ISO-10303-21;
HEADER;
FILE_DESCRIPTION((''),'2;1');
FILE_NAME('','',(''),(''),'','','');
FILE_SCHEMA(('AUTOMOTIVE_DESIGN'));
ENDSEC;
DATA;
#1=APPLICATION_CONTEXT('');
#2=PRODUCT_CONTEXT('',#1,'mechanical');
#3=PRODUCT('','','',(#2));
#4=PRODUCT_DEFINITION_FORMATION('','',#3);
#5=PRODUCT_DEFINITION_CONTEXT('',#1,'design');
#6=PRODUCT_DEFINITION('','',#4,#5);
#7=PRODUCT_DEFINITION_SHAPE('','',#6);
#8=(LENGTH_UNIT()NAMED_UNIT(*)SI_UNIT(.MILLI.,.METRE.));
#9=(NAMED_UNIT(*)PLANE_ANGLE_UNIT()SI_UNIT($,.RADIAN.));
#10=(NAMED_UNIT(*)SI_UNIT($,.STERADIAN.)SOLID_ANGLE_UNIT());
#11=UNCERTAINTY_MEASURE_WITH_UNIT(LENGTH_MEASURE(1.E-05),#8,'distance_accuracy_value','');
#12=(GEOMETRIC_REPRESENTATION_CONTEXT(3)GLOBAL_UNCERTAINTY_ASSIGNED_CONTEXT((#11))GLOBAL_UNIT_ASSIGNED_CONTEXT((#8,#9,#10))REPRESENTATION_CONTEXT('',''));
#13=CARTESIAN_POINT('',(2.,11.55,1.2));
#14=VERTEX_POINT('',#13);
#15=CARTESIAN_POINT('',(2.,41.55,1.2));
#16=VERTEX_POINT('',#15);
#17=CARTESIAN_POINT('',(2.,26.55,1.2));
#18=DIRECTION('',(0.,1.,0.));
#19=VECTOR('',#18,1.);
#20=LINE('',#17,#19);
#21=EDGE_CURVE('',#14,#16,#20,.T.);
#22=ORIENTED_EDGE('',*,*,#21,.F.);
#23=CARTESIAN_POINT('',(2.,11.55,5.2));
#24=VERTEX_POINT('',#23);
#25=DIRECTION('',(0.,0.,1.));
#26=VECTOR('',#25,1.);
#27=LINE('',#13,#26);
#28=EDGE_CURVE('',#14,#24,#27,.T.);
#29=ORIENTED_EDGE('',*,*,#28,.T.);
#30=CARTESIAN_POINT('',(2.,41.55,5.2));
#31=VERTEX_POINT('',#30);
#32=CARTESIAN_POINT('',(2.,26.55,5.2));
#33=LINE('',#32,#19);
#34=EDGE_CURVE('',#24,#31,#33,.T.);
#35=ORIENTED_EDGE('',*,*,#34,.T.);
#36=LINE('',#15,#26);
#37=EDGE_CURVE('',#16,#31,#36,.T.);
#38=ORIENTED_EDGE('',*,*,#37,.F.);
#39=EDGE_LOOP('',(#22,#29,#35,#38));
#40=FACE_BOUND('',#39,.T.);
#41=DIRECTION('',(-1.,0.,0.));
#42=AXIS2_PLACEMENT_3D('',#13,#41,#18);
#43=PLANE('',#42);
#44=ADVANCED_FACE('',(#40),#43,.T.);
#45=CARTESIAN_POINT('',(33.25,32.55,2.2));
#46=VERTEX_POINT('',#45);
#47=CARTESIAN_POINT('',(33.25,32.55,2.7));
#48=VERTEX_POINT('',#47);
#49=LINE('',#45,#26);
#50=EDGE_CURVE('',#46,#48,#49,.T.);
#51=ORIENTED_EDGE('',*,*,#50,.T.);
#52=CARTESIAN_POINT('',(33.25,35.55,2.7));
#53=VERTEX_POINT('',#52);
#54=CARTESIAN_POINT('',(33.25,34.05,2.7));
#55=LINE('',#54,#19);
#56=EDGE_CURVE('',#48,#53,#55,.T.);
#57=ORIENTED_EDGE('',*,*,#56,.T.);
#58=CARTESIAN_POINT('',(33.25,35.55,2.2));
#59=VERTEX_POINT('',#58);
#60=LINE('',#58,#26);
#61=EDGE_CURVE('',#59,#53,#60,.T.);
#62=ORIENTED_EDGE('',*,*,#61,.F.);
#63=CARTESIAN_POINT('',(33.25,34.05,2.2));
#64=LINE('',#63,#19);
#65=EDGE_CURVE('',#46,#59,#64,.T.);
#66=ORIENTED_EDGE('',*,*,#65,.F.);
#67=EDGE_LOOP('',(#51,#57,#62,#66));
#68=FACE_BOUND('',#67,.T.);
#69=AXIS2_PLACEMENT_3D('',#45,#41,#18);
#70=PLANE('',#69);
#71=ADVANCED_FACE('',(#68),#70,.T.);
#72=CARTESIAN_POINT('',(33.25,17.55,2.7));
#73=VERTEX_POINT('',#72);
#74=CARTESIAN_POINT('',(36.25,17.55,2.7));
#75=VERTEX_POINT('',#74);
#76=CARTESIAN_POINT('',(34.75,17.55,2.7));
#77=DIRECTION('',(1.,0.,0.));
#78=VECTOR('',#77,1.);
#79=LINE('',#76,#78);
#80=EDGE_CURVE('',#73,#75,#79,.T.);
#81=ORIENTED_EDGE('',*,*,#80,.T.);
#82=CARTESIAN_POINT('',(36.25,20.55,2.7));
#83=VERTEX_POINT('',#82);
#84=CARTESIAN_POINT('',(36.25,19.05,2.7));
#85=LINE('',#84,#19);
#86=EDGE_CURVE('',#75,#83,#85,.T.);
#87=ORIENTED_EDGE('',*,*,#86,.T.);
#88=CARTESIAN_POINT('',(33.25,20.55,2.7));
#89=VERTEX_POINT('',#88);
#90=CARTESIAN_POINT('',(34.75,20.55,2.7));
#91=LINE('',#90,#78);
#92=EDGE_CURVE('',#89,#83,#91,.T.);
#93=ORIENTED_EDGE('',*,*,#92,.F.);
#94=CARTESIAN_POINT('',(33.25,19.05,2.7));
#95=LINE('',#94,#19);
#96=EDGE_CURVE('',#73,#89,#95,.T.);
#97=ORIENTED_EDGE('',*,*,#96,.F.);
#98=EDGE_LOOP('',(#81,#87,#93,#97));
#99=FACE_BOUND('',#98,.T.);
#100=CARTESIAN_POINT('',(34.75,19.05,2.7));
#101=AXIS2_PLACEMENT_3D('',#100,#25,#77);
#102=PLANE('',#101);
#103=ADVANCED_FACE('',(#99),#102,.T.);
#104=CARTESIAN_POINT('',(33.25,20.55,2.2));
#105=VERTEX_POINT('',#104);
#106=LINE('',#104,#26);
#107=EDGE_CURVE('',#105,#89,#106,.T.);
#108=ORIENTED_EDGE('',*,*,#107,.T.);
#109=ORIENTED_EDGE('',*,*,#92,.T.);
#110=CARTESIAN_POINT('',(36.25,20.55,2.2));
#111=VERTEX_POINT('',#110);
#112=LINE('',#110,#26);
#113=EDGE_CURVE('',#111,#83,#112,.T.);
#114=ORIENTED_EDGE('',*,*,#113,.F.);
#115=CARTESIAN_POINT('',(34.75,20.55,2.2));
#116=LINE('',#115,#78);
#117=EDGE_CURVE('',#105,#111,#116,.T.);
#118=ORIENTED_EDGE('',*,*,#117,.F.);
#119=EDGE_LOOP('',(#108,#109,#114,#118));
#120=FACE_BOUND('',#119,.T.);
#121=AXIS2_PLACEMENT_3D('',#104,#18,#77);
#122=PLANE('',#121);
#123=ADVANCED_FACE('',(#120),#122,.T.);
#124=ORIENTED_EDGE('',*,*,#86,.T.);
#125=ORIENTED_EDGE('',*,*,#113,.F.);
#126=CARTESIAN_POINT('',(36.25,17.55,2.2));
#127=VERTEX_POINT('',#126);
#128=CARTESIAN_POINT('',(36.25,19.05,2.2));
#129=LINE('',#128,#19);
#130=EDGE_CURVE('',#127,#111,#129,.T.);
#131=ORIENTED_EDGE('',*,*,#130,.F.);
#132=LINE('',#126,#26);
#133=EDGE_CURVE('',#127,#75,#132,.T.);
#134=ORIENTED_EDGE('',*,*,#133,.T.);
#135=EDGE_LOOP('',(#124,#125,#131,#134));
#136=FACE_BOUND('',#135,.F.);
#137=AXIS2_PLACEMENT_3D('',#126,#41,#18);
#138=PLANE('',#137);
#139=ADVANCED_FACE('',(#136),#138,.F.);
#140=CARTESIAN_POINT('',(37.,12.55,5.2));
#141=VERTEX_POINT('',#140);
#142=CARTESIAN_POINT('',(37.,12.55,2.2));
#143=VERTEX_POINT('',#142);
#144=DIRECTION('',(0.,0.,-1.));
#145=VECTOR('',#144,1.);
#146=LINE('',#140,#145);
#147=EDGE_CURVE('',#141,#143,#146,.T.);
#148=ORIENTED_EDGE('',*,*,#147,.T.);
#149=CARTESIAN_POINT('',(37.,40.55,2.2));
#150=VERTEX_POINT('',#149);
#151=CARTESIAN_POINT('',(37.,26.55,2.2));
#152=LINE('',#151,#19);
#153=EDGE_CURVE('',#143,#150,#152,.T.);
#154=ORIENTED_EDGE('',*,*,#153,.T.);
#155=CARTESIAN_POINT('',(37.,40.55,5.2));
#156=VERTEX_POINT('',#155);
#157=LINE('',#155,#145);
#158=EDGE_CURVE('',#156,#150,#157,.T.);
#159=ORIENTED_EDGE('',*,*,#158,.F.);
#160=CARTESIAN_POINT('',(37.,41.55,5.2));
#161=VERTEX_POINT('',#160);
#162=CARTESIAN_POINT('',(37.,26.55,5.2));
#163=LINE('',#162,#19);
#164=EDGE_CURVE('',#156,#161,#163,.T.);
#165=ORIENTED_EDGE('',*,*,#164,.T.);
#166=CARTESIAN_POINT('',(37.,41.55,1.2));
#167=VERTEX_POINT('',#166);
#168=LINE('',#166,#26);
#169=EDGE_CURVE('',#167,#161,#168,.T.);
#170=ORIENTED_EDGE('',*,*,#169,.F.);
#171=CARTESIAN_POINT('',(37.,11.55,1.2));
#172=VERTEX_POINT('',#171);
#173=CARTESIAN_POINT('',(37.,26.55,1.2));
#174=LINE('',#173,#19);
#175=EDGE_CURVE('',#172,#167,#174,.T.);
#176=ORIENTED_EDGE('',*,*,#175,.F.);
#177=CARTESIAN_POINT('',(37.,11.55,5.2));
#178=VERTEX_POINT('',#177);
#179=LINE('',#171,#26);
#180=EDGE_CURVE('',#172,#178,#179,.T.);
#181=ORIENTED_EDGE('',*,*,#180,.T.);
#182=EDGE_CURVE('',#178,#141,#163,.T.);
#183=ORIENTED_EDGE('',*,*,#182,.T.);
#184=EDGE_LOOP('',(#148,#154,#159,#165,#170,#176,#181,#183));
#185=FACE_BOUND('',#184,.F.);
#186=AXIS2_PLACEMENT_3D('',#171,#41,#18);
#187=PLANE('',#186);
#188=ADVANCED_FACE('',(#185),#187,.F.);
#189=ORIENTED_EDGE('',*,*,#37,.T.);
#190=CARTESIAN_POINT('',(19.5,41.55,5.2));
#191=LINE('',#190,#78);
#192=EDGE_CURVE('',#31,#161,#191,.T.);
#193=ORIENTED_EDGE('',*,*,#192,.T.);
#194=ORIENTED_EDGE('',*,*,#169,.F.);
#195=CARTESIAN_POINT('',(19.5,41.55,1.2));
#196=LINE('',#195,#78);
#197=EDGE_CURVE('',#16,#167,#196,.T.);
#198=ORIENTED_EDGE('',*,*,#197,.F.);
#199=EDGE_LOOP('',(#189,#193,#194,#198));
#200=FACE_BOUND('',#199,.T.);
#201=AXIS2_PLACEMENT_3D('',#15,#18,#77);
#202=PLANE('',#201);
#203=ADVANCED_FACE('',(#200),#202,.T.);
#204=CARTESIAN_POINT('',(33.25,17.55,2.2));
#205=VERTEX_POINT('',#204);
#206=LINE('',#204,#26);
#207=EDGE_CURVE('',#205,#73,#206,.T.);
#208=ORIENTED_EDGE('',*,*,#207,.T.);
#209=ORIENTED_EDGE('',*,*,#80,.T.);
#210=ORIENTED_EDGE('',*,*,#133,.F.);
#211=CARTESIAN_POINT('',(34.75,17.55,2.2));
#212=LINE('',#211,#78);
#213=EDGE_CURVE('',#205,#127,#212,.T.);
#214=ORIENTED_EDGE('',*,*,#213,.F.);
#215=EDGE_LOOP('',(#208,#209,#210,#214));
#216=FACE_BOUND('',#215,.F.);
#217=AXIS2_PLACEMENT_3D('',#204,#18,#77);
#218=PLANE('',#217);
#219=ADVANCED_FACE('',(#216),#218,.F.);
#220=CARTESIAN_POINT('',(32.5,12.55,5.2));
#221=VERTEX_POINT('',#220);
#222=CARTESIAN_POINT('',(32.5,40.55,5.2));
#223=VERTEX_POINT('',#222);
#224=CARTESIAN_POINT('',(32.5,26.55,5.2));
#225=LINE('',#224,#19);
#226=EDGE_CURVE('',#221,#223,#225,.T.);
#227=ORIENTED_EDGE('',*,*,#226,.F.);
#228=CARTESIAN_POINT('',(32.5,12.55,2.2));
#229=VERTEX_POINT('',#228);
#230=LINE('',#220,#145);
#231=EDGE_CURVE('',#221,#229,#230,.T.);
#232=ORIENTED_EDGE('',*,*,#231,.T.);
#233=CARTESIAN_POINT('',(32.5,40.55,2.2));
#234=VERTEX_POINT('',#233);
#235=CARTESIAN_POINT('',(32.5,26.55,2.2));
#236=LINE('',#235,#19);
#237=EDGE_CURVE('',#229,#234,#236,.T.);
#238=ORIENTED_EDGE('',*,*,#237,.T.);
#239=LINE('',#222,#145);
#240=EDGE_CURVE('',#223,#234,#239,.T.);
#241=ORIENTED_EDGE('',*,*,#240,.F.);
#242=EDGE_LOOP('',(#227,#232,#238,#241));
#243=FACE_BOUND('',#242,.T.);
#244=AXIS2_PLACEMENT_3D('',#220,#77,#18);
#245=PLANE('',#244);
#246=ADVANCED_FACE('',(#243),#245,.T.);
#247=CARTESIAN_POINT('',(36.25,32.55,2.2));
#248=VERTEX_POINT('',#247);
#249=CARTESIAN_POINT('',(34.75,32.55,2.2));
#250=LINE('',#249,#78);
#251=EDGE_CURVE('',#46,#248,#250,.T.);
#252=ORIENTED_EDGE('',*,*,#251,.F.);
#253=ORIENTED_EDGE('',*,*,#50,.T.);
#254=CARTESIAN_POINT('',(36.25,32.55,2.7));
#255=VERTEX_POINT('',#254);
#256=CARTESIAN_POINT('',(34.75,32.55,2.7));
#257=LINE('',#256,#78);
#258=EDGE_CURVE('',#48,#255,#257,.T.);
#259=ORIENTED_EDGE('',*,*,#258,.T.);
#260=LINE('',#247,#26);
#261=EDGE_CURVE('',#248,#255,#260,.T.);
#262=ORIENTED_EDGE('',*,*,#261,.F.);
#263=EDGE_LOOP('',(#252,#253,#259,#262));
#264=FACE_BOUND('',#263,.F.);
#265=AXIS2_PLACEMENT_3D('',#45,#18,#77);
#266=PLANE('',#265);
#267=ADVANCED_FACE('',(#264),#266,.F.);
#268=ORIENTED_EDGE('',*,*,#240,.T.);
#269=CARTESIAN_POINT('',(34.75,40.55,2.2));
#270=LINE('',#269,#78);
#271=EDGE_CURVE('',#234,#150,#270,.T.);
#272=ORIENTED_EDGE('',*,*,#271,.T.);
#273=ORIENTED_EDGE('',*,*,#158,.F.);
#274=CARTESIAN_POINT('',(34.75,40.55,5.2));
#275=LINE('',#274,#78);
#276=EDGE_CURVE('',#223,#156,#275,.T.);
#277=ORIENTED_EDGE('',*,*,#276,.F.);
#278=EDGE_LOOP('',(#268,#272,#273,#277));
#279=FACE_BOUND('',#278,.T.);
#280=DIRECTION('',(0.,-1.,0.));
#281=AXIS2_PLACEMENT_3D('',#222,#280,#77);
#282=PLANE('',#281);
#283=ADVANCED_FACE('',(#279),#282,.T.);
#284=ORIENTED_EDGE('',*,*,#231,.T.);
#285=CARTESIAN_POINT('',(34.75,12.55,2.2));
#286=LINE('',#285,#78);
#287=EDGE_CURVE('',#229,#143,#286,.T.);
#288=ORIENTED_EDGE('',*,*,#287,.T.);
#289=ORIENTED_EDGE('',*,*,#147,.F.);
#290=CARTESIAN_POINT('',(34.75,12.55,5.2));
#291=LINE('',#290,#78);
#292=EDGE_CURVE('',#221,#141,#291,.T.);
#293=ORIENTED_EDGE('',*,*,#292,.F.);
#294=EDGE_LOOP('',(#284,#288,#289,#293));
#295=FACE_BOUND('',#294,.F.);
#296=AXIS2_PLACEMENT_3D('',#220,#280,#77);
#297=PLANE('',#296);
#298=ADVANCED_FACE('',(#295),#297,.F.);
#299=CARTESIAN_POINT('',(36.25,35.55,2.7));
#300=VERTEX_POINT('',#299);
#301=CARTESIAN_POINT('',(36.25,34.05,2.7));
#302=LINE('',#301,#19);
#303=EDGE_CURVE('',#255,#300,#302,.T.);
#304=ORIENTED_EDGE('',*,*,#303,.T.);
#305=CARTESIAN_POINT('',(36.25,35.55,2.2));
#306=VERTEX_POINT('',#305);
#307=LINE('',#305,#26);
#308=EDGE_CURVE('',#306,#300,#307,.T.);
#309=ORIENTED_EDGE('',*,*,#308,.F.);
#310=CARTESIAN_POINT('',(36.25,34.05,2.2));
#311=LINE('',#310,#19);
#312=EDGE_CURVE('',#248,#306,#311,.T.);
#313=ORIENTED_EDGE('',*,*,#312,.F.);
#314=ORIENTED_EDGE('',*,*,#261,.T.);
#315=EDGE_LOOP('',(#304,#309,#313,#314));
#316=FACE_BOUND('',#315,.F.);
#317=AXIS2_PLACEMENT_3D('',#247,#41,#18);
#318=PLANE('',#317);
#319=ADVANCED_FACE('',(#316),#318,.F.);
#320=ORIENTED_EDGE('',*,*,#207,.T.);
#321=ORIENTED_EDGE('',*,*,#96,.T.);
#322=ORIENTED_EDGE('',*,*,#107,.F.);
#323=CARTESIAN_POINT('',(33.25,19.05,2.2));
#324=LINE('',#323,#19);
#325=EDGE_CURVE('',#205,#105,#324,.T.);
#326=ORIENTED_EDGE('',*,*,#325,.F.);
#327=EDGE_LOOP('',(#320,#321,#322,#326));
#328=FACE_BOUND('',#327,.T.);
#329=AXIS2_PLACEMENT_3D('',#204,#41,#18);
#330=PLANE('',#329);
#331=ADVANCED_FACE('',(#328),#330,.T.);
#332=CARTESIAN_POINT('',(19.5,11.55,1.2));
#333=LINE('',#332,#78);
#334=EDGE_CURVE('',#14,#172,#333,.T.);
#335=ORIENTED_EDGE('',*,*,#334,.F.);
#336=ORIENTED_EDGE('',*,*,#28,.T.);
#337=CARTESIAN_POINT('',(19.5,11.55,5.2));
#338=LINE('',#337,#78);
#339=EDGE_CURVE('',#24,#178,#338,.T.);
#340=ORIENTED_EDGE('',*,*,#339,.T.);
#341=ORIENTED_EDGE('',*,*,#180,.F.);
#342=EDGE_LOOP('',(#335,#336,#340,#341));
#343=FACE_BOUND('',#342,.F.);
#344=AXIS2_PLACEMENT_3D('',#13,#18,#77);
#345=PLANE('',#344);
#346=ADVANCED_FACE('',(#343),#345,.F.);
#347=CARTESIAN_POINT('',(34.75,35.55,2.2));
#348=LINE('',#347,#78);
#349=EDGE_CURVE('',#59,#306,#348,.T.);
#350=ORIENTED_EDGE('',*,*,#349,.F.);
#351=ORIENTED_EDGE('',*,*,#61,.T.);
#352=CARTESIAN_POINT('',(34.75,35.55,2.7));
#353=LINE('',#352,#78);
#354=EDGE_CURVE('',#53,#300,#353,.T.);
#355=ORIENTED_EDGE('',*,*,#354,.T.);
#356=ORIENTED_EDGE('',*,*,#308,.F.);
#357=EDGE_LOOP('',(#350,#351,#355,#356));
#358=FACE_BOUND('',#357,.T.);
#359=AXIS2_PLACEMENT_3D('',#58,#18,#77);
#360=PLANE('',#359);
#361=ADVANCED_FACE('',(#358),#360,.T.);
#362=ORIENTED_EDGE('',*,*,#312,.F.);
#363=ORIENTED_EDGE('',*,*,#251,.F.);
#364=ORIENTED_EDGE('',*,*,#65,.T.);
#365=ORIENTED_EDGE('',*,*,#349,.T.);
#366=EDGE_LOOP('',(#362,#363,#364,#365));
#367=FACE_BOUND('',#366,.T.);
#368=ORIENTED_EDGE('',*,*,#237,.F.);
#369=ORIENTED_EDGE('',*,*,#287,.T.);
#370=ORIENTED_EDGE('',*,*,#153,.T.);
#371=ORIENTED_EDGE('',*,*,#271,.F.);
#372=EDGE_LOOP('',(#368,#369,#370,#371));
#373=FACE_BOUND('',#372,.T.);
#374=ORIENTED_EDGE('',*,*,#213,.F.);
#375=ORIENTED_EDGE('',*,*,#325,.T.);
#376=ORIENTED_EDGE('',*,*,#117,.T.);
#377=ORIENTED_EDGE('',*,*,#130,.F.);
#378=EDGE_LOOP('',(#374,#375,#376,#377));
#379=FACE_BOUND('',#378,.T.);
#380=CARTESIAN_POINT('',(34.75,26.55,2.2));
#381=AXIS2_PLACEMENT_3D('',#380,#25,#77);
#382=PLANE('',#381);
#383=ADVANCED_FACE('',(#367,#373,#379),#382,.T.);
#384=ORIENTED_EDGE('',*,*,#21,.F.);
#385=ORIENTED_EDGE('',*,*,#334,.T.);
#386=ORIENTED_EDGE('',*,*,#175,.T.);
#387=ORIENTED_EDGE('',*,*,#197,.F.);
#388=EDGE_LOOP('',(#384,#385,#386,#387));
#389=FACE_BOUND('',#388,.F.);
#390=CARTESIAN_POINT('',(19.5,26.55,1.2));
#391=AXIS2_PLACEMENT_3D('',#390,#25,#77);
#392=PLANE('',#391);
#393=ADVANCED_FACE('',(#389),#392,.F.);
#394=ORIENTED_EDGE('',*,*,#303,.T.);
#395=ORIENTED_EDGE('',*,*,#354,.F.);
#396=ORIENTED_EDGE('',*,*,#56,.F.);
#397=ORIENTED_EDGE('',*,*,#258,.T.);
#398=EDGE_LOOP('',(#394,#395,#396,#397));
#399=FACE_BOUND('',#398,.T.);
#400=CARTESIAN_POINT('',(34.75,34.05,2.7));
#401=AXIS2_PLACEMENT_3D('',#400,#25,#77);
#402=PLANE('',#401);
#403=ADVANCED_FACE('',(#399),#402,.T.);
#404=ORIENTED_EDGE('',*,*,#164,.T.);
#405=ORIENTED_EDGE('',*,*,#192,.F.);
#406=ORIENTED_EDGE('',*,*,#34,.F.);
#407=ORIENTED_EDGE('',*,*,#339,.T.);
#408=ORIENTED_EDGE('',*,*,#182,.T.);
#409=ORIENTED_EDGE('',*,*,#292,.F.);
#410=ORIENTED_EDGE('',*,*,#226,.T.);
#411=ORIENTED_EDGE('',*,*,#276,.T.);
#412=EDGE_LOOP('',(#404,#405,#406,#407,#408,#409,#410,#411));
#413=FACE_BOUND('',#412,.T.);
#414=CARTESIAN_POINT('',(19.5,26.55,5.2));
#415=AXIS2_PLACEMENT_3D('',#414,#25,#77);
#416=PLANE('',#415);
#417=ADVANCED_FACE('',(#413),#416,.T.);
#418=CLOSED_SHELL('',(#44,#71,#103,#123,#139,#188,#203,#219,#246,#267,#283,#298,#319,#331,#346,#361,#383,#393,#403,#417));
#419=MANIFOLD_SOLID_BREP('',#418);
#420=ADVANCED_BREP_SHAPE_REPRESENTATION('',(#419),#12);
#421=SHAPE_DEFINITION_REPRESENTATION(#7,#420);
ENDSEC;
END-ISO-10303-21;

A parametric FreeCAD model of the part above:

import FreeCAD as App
import Part
import Sketcher

V = App.Vector


def add_polygon(sketch, points):
    """Adds a closed chain of lines whose ends are joined by coincident constraints."""
    first, n = sketch.GeometryCount, len(points)
    for a, b in zip(points, points[1:] + points[:1]):
        sketch.addGeometry(Part.LineSegment(App.Vector(*a, 0), App.Vector(*b, 0)), False)
    for i in range(n):
        sketch.addConstraint(Sketcher.Constraint("Coincident", first + i, 2, first + (i + 1) % n, 1))

doc = App.newDocument("Part")
body = doc.addObject("PartDesign::Body", "Body")

sketch1 = body.newObject("Sketcher::SketchObject", "Sketch")
sketch1.AttachmentSupport = (doc.getObject("XY_Plane"), [""])
sketch1.MapMode = "FlatFace"
sketch1.AttachmentOffset = App.Placement(V(0, 0, 1.2), App.Rotation())
add_polygon(sketch1, [(2, 42), (2, 12), (37, 12), (37, 42)])
sketch1.addConstraint([
    Sketcher.Constraint("Vertical", 0),
    Sketcher.Constraint("Horizontal", 1),
    Sketcher.Constraint("Vertical", 2),
    Sketcher.Constraint("Horizontal", 3),
    Sketcher.Constraint("DistanceX", 1, 1, 1, 2, 35.0),
    Sketcher.Constraint("DistanceY", 0, 2, 0, 1, 30.0),
    Sketcher.Constraint("DistanceX", -1, 1, 0, 2, 2.0),
    Sketcher.Constraint("DistanceY", -1, 1, 0, 2, 11.55),
])
pad1 = body.newObject("PartDesign::Pad", "Pad")
pad1.Profile = sketch1
pad1.Length = 4

sketch2 = body.newObject("Sketcher::SketchObject", "Sketch001")
sketch2.AttachmentSupport = (doc.getObject("XY_Plane"), [""])
sketch2.MapMode = "FlatFace"
sketch2.AttachmentOffset = App.Placement(V(0, 0, 5.2), App.Rotation())
add_polygon(sketch2, [(32.5, 40.5), (32.5, 12.6), (37, 12.6), (37, 40.5)])
sketch2.addConstraint([
    Sketcher.Constraint("Vertical", 0),
    Sketcher.Constraint("Horizontal", 1),
    Sketcher.Constraint("Vertical", 2),
    Sketcher.Constraint("Horizontal", 3),
    Sketcher.Constraint("DistanceY", 0, 2, 0, 1, 28.0),
    Sketcher.Constraint("DistanceX", 1, 1, 1, 2, 4.5),
    Sketcher.Constraint("DistanceX", -1, 1, 1, 2, 37.0),
    Sketcher.Constraint("DistanceY", -1, 1, 0, 2, 12.55),
])
pocket1 = body.newObject("PartDesign::Pocket", "Pocket")
pocket1.Profile = sketch2
pocket1.Length = 3

sketch3 = body.newObject("Sketcher::SketchObject", "Sketch002")
sketch3.AttachmentSupport = (doc.getObject("XY_Plane"), [""])
sketch3.MapMode = "FlatFace"
sketch3.AttachmentOffset = App.Placement(V(0, 0, 2.2), App.Rotation())
add_polygon(sketch3, [(33.2, 35.5), (33.2, 32.5), (36.2, 32.5), (36.2, 35.5)])
add_polygon(sketch3, [(33.2, 20.6), (33.2, 17.6), (36.2, 17.6), (36.2, 20.6)])
sketch3.addConstraint([
    Sketcher.Constraint("Vertical", 0),
    Sketcher.Constraint("Horizontal", 1),
    Sketcher.Constraint("Vertical", 2),
    Sketcher.Constraint("Horizontal", 3),
    Sketcher.Constraint("Vertical", 4),
    Sketcher.Constraint("Horizontal", 5),
    Sketcher.Constraint("Vertical", 6),
    Sketcher.Constraint("Horizontal", 7),
    Sketcher.Constraint("Vertical", 3, 2, 4, 2),
    Sketcher.Constraint("Vertical", 2, 2, 5, 2),
    Sketcher.Constraint("Equal", 7, 0),
    Sketcher.Constraint("Equal", 2, 4),
    Sketcher.Constraint("DistanceX", 1, 1, 1, 2, 3.0),
    Sketcher.Constraint("DistanceY", 4, 2, 0, 2, 15.0),
    Sketcher.Constraint("DistanceX", -1, 1, 0, 2, 33.25),
    Sketcher.Constraint("DistanceY", -1, 1, 0, 2, 32.55),
])
pad2 = body.newObject("PartDesign::Pad", "Pad001")
pad2.Profile = sketch3
pad2.Length = 0.5

doc.recompute()
